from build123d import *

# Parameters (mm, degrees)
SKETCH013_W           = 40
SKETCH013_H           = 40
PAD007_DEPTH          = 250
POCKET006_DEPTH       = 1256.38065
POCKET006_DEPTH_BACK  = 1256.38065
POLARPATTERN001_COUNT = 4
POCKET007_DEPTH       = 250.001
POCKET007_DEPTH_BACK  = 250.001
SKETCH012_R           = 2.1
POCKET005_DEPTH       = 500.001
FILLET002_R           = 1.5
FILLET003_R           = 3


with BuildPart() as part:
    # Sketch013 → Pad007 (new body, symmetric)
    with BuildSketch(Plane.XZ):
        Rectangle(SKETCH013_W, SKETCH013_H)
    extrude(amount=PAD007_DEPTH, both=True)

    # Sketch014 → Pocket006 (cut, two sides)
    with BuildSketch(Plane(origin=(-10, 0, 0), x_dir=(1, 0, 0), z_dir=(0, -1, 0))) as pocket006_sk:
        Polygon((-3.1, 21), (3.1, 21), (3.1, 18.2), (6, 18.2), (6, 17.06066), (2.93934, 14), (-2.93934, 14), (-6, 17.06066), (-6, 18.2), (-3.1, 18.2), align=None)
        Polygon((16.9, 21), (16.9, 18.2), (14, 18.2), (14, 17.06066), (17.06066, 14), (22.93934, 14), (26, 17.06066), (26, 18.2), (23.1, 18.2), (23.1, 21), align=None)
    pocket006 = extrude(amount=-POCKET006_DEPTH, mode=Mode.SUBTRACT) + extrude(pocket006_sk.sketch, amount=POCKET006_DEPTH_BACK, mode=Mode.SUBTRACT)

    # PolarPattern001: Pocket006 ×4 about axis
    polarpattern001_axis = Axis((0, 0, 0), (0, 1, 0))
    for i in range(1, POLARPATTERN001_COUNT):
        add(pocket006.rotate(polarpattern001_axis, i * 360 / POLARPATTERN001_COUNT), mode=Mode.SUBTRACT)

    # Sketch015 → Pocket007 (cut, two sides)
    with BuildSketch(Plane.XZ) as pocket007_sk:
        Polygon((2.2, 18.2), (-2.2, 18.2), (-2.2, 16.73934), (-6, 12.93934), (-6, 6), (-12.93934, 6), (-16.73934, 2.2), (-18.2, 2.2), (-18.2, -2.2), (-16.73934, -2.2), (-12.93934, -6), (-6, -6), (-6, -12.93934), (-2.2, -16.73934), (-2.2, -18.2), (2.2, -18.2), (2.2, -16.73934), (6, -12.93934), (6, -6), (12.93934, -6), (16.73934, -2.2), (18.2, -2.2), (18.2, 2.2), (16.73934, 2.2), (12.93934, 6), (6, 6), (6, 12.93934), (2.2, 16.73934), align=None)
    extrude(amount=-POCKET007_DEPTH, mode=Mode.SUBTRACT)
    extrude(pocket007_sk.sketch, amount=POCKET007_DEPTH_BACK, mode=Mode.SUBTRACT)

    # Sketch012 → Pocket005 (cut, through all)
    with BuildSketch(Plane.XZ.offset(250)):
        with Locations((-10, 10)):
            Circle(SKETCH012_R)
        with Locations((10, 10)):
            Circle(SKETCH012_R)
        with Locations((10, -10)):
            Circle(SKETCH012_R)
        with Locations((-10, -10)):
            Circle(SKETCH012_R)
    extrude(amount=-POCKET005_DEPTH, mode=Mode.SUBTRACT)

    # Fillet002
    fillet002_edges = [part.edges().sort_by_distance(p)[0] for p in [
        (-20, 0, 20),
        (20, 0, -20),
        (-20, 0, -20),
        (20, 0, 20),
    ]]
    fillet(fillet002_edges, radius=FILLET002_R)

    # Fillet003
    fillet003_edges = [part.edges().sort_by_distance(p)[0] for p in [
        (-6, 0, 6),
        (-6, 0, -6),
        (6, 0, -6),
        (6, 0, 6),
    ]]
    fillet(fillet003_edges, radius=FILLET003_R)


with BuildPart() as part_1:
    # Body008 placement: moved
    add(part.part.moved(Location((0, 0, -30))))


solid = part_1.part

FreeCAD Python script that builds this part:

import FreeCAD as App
import Part
import Sketcher
Q = App.Units.Quantity


def edges_at(feature, points):
    """Names of the edges that pass closest to the given points."""
    edges = feature.Shape.Edges
    near = lambda p: min(range(len(edges)), key=lambda i: edges[i].distToShape(Part.Vertex(*p))[0])
    return sorted({f"Edge{near(p) + 1}" for p in points})

doc = App.newDocument("Part")
body = doc.addObject("PartDesign::Body", "Body")

# Sketch on XZ plane
sketch1 = body.newObject("Sketcher::SketchObject", "Sketch")
sketch1.AttachmentSupport = (doc.getObject("XZ_Plane"), [""])
sketch1.MapMode = "FlatFace"
sketch1.addGeometry(Part.LineSegment(App.Vector(-20, 20, 0), App.Vector(-20, -20, 0)), False)
sketch1.addGeometry(Part.LineSegment(App.Vector(-20, -20, 0), App.Vector(20, -20, 0)), False)
sketch1.addGeometry(Part.LineSegment(App.Vector(20, -20, 0), App.Vector(20, 20, 0)), False)
sketch1.addGeometry(Part.LineSegment(App.Vector(20, 20, 0), App.Vector(-20, 20, 0)), False)
sketch1.addConstraint(Sketcher.Constraint("Coincident", 0, 2, 1, 1))
sketch1.addConstraint(Sketcher.Constraint("Coincident", 1, 2, 2, 1))
sketch1.addConstraint(Sketcher.Constraint("Coincident", 2, 2, 3, 1))
sketch1.addConstraint(Sketcher.Constraint("Coincident", 3, 2, 0, 1))
sketch1.addConstraint(Sketcher.Constraint("Vertical", 0))
sketch1.addConstraint(Sketcher.Constraint("Horizontal", 1))
sketch1.addConstraint(Sketcher.Constraint("Vertical", 2))
sketch1.addConstraint(Sketcher.Constraint("Horizontal", 3))
sketch1.addConstraint(Sketcher.Constraint("Symmetric", 0, 2, 2, 2, -1, 1))
sketch1.addConstraint(Sketcher.Constraint("Equal", 3, 0))
sketch1.addConstraint(Sketcher.Constraint("DistanceX", 1, 1, 1, 2, Q("40 mm")))
pad1 = body.newObject("PartDesign::Pad", "Pad")
pad1.Profile = sketch1
pad1.Length = 500
pad1.Midplane = True

# Sketch on XZ plane
sketch2 = body.newObject("Sketcher::SketchObject", "Sketch001")
sketch2.AttachmentSupport = (doc.getObject("XZ_Plane"), [""])
sketch2.MapMode = "FlatFace"
sketch2.addGeometry(Part.LineSegment(App.Vector(-6.9, 21, 0), App.Vector(-13.1, 21, 0)), False)
sketch2.addGeometry(Part.LineSegment(App.Vector(-13.1, 21, 0), App.Vector(-13.1, 18.2, 0)), False)
sketch2.addGeometry(Part.LineSegment(App.Vector(-13.1, 18.2, 0), App.Vector(-16, 18.2, 0)), False)
sketch2.addGeometry(Part.LineSegment(App.Vector(-16, 18.2, 0), App.Vector(-16, 17.1, 0)), False)
sketch2.addGeometry(Part.LineSegment(App.Vector(-16, 17.1, 0), App.Vector(-12.9, 14, 0)), False)
sketch2.addGeometry(Part.LineSegment(App.Vector(-12.9, 14, 0), App.Vector(-7.1, 14, 0)), False)
sketch2.addGeometry(Part.LineSegment(App.Vector(-7.1, 14, 0), App.Vector(-4, 17.1, 0)), False)
sketch2.addGeometry(Part.LineSegment(App.Vector(-4, 17.1, 0), App.Vector(-4, 18.2, 0)), False)
sketch2.addGeometry(Part.LineSegment(App.Vector(-4, 18.2, 0), App.Vector(-6.9, 18.2, 0)), False)
sketch2.addGeometry(Part.LineSegment(App.Vector(-6.9, 18.2, 0), App.Vector(-6.9, 21, 0)), False)
sketch2.addGeometry(Part.LineSegment(App.Vector(6.9, 21, 0), App.Vector(6.9, 18.2, 0)), False)
sketch2.addGeometry(Part.LineSegment(App.Vector(6.9, 18.2, 0), App.Vector(4, 18.2, 0)), False)
sketch2.addGeometry(Part.LineSegment(App.Vector(4, 18.2, 0), App.Vector(4, 17.1, 0)), False)
sketch2.addGeometry(Part.LineSegment(App.Vector(4, 17.1, 0), App.Vector(7.1, 14, 0)), False)
sketch2.addGeometry(Part.LineSegment(App.Vector(7.1, 14, 0), App.Vector(12.9, 14, 0)), False)
sketch2.addGeometry(Part.LineSegment(App.Vector(12.9, 14, 0), App.Vector(16, 17.1, 0)), False)
sketch2.addGeometry(Part.LineSegment(App.Vector(16, 17.1, 0), App.Vector(16, 18.2, 0)), False)
sketch2.addGeometry(Part.LineSegment(App.Vector(16, 18.2, 0), App.Vector(13.1, 18.2, 0)), False)
sketch2.addGeometry(Part.LineSegment(App.Vector(13.1, 18.2, 0), App.Vector(13.1, 21, 0)), False)
sketch2.addGeometry(Part.LineSegment(App.Vector(13.1, 21, 0), App.Vector(6.9, 21, 0)), False)
sketch2.addConstraint(Sketcher.Constraint("Coincident", 0, 2, 1, 1))
sketch2.addConstraint(Sketcher.Constraint("Coincident", 1, 2, 2, 1))
sketch2.addConstraint(Sketcher.Constraint("Coincident", 2, 2, 3, 1))
sketch2.addConstraint(Sketcher.Constraint("Coincident", 3, 2, 4, 1))
sketch2.addConstraint(Sketcher.Constraint("Coincident", 4, 2, 5, 1))
sketch2.addConstraint(Sketcher.Constraint("Coincident", 5, 2, 6, 1))
sketch2.addConstraint(Sketcher.Constraint("Coincident", 6, 2, 7, 1))
sketch2.addConstraint(Sketcher.Constraint("Coincident", 7, 2, 8, 1))
sketch2.addConstraint(Sketcher.Constraint("Coincident", 8, 2, 9, 1))
sketch2.addConstraint(Sketcher.Constraint("Coincident", 9, 2, 0, 1))
sketch2.addConstraint(Sketcher.Constraint("Coincident", 10, 2, 11, 1))
sketch2.addConstraint(Sketcher.Constraint("Coincident", 11, 2, 12, 1))
sketch2.addConstraint(Sketcher.Constraint("Coincident", 12, 2, 13, 1))
sketch2.addConstraint(Sketcher.Constraint("Coincident", 13, 2, 14, 1))
sketch2.addConstraint(Sketcher.Constraint("Coincident", 14, 2, 15, 1))
sketch2.addConstraint(Sketcher.Constraint("Coincident", 15, 2, 16, 1))
sketch2.addConstraint(Sketcher.Constraint("Coincident", 16, 2, 17, 1))
sketch2.addConstraint(Sketcher.Constraint("Coincident", 17, 2, 18, 1))
sketch2.addConstraint(Sketcher.Constraint("Coincident", 18, 2, 19, 1))
sketch2.addConstraint(Sketcher.Constraint("Coincident", 19, 2, 10, 1))
sketch2.addConstraint(Sketcher.Constraint("Horizontal", 0))
sketch2.addConstraint(Sketcher.Constraint("Vertical", 1))
sketch2.addConstraint(Sketcher.Constraint("Horizontal", 2))
sketch2.addConstraint(Sketcher.Constraint("Vertical", 3))
sketch2.addConstraint(Sketcher.Constraint("Horizontal", 5))
sketch2.addConstraint(Sketcher.Constraint("Vertical", 7))
sketch2.addConstraint(Sketcher.Constraint("Horizontal", 8))
sketch2.addConstraint(Sketcher.Constraint("Vertical", 9))
sketch2.addConstraint(Sketcher.Constraint("Vertical", 10))
sketch2.addConstraint(Sketcher.Constraint("Horizontal", 11))
sketch2.addConstraint(Sketcher.Constraint("Vertical", 12))
sketch2.addConstraint(Sketcher.Constraint("Horizontal", 14))
sketch2.addConstraint(Sketcher.Constraint("Vertical", 16))
sketch2.addConstraint(Sketcher.Constraint("Horizontal", 17))
sketch2.addConstraint(Sketcher.Constraint("Vertical", 18))
sketch2.addConstraint(Sketcher.Constraint("Horizontal", 19))
sketch2.addConstraint(Sketcher.Constraint("Symmetric", 8, 2, 10, 2, -2))
sketch2.addConstraint(Sketcher.Constraint("Symmetric", 6, 2, 12, 2, -2))
sketch2.addConstraint(Sketcher.Constraint("Symmetric", 5, 2, 13, 2, -2))
sketch2.addConstraint(Sketcher.Constraint("Symmetric", 3, 2, 15, 2, -2))
sketch2.addConstraint(Sketcher.Constraint("Symmetric", 1, 2, 17, 2, -2))
sketch2.addConstraint(Sketcher.Constraint("Perpendicular", 4, 6))
sketch2.addConstraint(Sketcher.Constraint("Perpendicular", 6, 13))
sketch2.addConstraint(Sketcher.Constraint("Perpendicular", 13, 15))
sketch2.addConstraint(Sketcher.Constraint("Horizontal", 3, 2, 6, 2))
sketch2.addConstraint(Sketcher.Constraint("Horizontal", 2, 2, 7, 2))
sketch2.addConstraint(Sketcher.Constraint("Horizontal", 9, 2, 18, 2))
sketch2.addConstraint(Sketcher.Constraint("Equal", 2, 8))
sketch2.addConstraint(Sketcher.Constraint("DistanceX", 0, 2, 0, 1, Q("6.2 mm")))
sketch2.addConstraint(Sketcher.Constraint("DistanceX", 2, 2, 2, 1, Q("2.9 mm")))
sketch2.addConstraint(Sketcher.Constraint("DistanceY", 1, 2, 1, 1, Q("2.8 mm")))
sketch2.addConstraint(Sketcher.Constraint("DistanceY", -1, 1, 0, 2, Q("21 mm")))
sketch2.addConstraint(Sketcher.Constraint("DistanceX", 2, 2, -1, 1, Q("16 mm")))
sketch2.addConstraint(Sketcher.Constraint("DistanceY", -1, 1, 4, 2, Q("14 mm")))
sketch2.addConstraint(Sketcher.Constraint("DistanceX", 5, 1, 5, 2, Q("5.87868 mm")))
pocket1 = body.newObject("PartDesign::Pocket", "Pocket")
pocket1.Profile = sketch2
pocket1.Type = "ThroughAll"
pocket1.Midplane = True
doc.recompute()

polarpattern = body.newObject("PartDesign::PolarPattern", "PolarPattern")
polarpattern.Originals = [pocket1]
polarpattern.Axis = (doc.getObject("Y_Axis"), [""])
polarpattern.Angle = 360
polarpattern.Occurrences = 4
body.Tip = polarpattern

# Sketch on XZ plane
sketch3 = body.newObject("Sketcher::SketchObject", "Sketch002")
sketch3.AttachmentSupport = (doc.getObject("XZ_Plane"), [""])
sketch3.MapMode = "FlatFace"
sketch3.addGeometry(Part.LineSegment(App.Vector(2.2, 18.2, 0), App.Vector(-2.2, 18.2, 0)), False)
sketch3.addGeometry(Part.LineSegment(App.Vector(-2.2, 18.2, 0), App.Vector(-2.2, 16.7, 0)), False)
sketch3.addGeometry(Part.LineSegment(App.Vector(-2.2, 16.7, 0), App.Vector(-6, 12.9, 0)), False)
sketch3.addGeometry(Part.LineSegment(App.Vector(-6, 12.9, 0), App.Vector(-6, 6, 0)), False)
sketch3.addGeometry(Part.LineSegment(App.Vector(-6, 6, 0), App.Vector(-12.9, 6, 0)), False)
sketch3.addGeometry(Part.LineSegment(App.Vector(-12.9, 6, 0), App.Vector(-16.7, 2.2, 0)), False)
sketch3.addGeometry(Part.LineSegment(App.Vector(-16.7, 2.2, 0), App.Vector(-18.2, 2.2, 0)), False)
sketch3.addGeometry(Part.LineSegment(App.Vector(-18.2, 2.2, 0), App.Vector(-18.2, -2.2, 0)), False)
sketch3.addGeometry(Part.LineSegment(App.Vector(-18.2, -2.2, 0), App.Vector(-16.7, -2.2, 0)), False)
sketch3.addGeometry(Part.LineSegment(App.Vector(-16.7, -2.2, 0), App.Vector(-12.9, -6, 0)), False)
sketch3.addGeometry(Part.LineSegment(App.Vector(-12.9, -6, 0), App.Vector(-6, -6, 0)), False)
sketch3.addGeometry(Part.LineSegment(App.Vector(-6, -6, 0), App.Vector(-6, -12.9, 0)), False)
sketch3.addGeometry(Part.LineSegment(App.Vector(-6, -12.9, 0), App.Vector(-2.2, -16.7, 0)), False)
sketch3.addGeometry(Part.LineSegment(App.Vector(-2.2, -16.7, 0), App.Vector(-2.2, -18.2, 0)), False)
sketch3.addGeometry(Part.LineSegment(App.Vector(-2.2, -18.2, 0), App.Vector(2.2, -18.2, 0)), False)
sketch3.addGeometry(Part.LineSegment(App.Vector(2.2, -18.2, 0), App.Vector(2.2, -16.7, 0)), False)
sketch3.addGeometry(Part.LineSegment(App.Vector(2.2, -16.7, 0), App.Vector(6, -12.9, 0)), False)
sketch3.addGeometry(Part.LineSegment(App.Vector(6, -12.9, 0), App.Vector(6, -6, 0)), False)
sketch3.addGeometry(Part.LineSegment(App.Vector(6, -6, 0), App.Vector(12.9, -6, 0)), False)
sketch3.addGeometry(Part.LineSegment(App.Vector(12.9, -6, 0), App.Vector(16.7, -2.2, 0)), False)
sketch3.addGeometry(Part.LineSegment(App.Vector(16.7, -2.2, 0), App.Vector(18.2, -2.2, 0)), False)
sketch3.addGeometry(Part.LineSegment(App.Vector(18.2, -2.2, 0), App.Vector(18.2, 2.2, 0)), False)
sketch3.addGeometry(Part.LineSegment(App.Vector(18.2, 2.2, 0), App.Vector(16.7, 2.2, 0)), False)
sketch3.addGeometry(Part.LineSegment(App.Vector(16.7, 2.2, 0), App.Vector(12.9, 6, 0)), False)
sketch3.addGeometry(Part.LineSegment(App.Vector(12.9, 6, 0), App.Vector(6, 6, 0)), False)
sketch3.addGeometry(Part.LineSegment(App.Vector(6, 6, 0), App.Vector(6, 12.9, 0)), False)
sketch3.addGeometry(Part.LineSegment(App.Vector(6, 12.9, 0), App.Vector(2.2, 16.7, 0)), False)
sketch3.addGeometry(Part.LineSegment(App.Vector(2.2, 16.7, 0), App.Vector(2.2, 18.2, 0)), False)
sketch3.addConstraint(Sketcher.Constraint("Coincident", 0, 2, 1, 1))
sketch3.addConstraint(Sketcher.Constraint("Coincident", 1, 2, 2, 1))
sketch3.addConstraint(Sketcher.Constraint("Coincident", 2, 2, 3, 1))
sketch3.addConstraint(Sketcher.Constraint("Coincident", 3, 2, 4, 1))
sketch3.addConstraint(Sketcher.Constraint("Coincident", 4, 2, 5, 1))
sketch3.addConstraint(Sketcher.Constraint("Coincident", 5, 2, 6, 1))
sketch3.addConstraint(Sketcher.Constraint("Coincident", 6, 2, 7, 1))
sketch3.addConstraint(Sketcher.Constraint("Coincident", 7, 2, 8, 1))
sketch3.addConstraint(Sketcher.Constraint("Coincident", 8, 2, 9, 1))
sketch3.addConstraint(Sketcher.Constraint("Coincident", 9, 2, 10, 1))
sketch3.addConstraint(Sketcher.Constraint("Coincident", 10, 2, 11, 1))
sketch3.addConstraint(Sketcher.Constraint("Coincident", 11, 2, 12, 1))
sketch3.addConstraint(Sketcher.Constraint("Coincident", 12, 2, 13, 1))
sketch3.addConstraint(Sketcher.Constraint("Coincident", 13, 2, 14, 1))
sketch3.addConstraint(Sketcher.Constraint("Coincident", 14, 2, 15, 1))
sketch3.addConstraint(Sketcher.Constraint("Coincident", 15, 2, 16, 1))
sketch3.addConstraint(Sketcher.Constraint("Coincident", 16, 2, 17, 1))
sketch3.addConstraint(Sketcher.Constraint("Coincident", 17, 2, 18, 1))
sketch3.addConstraint(Sketcher.Constraint("Coincident", 18, 2, 19, 1))
sketch3.addConstraint(Sketcher.Constraint("Coincident", 19, 2, 20, 1))
sketch3.addConstraint(Sketcher.Constraint("Coincident", 20, 2, 21, 1))
sketch3.addConstraint(Sketcher.Constraint("Coincident", 21, 2, 22, 1))
sketch3.addConstraint(Sketcher.Constraint("Coincident", 22, 2, 23, 1))
sketch3.addConstraint(Sketcher.Constraint("Coincident", 23, 2, 24, 1))
sketch3.addConstraint(Sketcher.Constraint("Coincident", 24, 2, 25, 1))
sketch3.addConstraint(Sketcher.Constraint("Coincident", 25, 2, 26, 1))
sketch3.addConstraint(Sketcher.Constraint("Coincident", 26, 2, 27, 1))
sketch3.addConstraint(Sketcher.Constraint("Coincident", 27, 2, 0, 1))
sketch3.addConstraint(Sketcher.Constraint("Horizontal", 0))
sketch3.addConstraint(Sketcher.Constraint("Vertical", 1))
sketch3.addConstraint(Sketcher.Constraint("Vertical", 3))
sketch3.addConstraint(Sketcher.Constraint("Horizontal", 4))
sketch3.addConstraint(Sketcher.Constraint("Horizontal", 6))
sketch3.addConstraint(Sketcher.Constraint("Vertical", 7))
sketch3.addConstraint(Sketcher.Constraint("Horizontal", 8))
sketch3.addConstraint(Sketcher.Constraint("Horizontal", 10))
sketch3.addConstraint(Sketcher.Constraint("Vertical", 11))
sketch3.addConstraint(Sketcher.Constraint("Vertical", 13))
sketch3.addConstraint(Sketcher.Constraint("Horizontal", 14))
sketch3.addConstraint(Sketcher.Constraint("Vertical", 15))
sketch3.addConstraint(Sketcher.Constraint("Vertical", 17))
sketch3.addConstraint(Sketcher.Constraint("Horizontal", 18))
sketch3.addConstraint(Sketcher.Constraint("Horizontal", 20))
sketch3.addConstraint(Sketcher.Constraint("Vertical", 21))
sketch3.addConstraint(Sketcher.Constraint("Horizontal", 22))
sketch3.addConstraint(Sketcher.Constraint("Horizontal", 24))
sketch3.addConstraint(Sketcher.Constraint("Vertical", 25))
sketch3.addConstraint(Sketcher.Constraint("Vertical", 27))
sketch3.addConstraint(Sketcher.Constraint("Symmetric", 0, 2, 14, 2, -1, 1))
sketch3.addConstraint(Sketcher.Constraint("Symmetric", 2, 2, 16, 2, -1, 1))
sketch3.addConstraint(Sketcher.Constraint("Symmetric", 4, 2, 18, 2, -1, 1))
sketch3.addConstraint(Sketcher.Constraint("Symmetric", 5, 2, 19, 2, -1, 1))
sketch3.addConstraint(Sketcher.Constraint("Symmetric", 7, 2, 21, 2, -1, 1))
sketch3.addConstraint(Sketcher.Constraint("Symmetric", 9, 2, 23, 2, -1, 1))
sketch3.addConstraint(Sketcher.Constraint("Symmetric", 11, 2, 25, 2, -1, 1))
sketch3.addConstraint(Sketcher.Constraint("Symmetric", 12, 2, 26, 2, -1, 1))
sketch3.addConstraint(Sketcher.Constraint("Symmetric", 12, 2, 15, 2, -2))
sketch3.addConstraint(Sketcher.Constraint("Symmetric", 11, 2, 16, 2, -2))
sketch3.addConstraint(Sketcher.Constraint("Symmetric", 9, 2, 18, 2, -2))
sketch3.addConstraint(Sketcher.Constraint("Symmetric", 8, 2, 19, 2, -2))
sketch3.addConstraint(Sketcher.Constraint("Parallel", 2, 5))
sketch3.addConstraint(Sketcher.Constraint("Perpendicular", 5, 9))
sketch3.addConstraint(Sketcher.Constraint("Parallel", 9, 12))
sketch3.addConstraint(Sketcher.Constraint("Perpendicular", 19, 23))
sketch3.addConstraint(Sketcher.Constraint("Equal", 22, 1))
sketch3.addConstraint(Sketcher.Constraint("Equal", 24, 3))
sketch3.addConstraint(Sketcher.Constraint("Equal", 14, 7))
sketch3.addConstraint(Sketcher.Constraint("Equal", 2, 5))
sketch3.addConstraint(Sketcher.Constraint("DistanceX", 0, 2, 0, 1, Q("4.4 mm")))
sketch3.addConstraint(Sketcher.Constraint("DistanceX", 2, 2, -1, 1, Q("6 mm")))
sketch3.addConstraint(Sketcher.Constraint("DistanceY", 5, 2, 0, 2, Q("16 mm")))
sketch3.addConstraint(Sketcher.Constraint("DistanceX", 4, 2, 4, 1, Q("6.93934 mm")))
pocket2 = body.newObject("PartDesign::Pocket", "Pocket001")
pocket2.Profile = sketch3
pocket2.Type = "ThroughAll"
pocket2.Midplane = True

# Sketch on XZ plane
sketch4 = body.newObject("Sketcher::SketchObject", "Sketch003")
sketch4.AttachmentSupport = (doc.getObject("XZ_Plane"), [""])
sketch4.MapMode = "FlatFace"
sketch4.AttachmentOffset = App.Placement(App.Vector(0, 0, 250), App.Rotation())
sketch4.addGeometry(Part.Circle(App.Vector(-10, 10, 0), App.Vector(0, 0, 1), 2.1), False)
sketch4.addGeometry(Part.Circle(App.Vector(10, 10, 0), App.Vector(0, 0, 1), 2.1), False)
sketch4.addGeometry(Part.Circle(App.Vector(10, -10, 0), App.Vector(0, 0, 1), 2.1), False)
sketch4.addGeometry(Part.Circle(App.Vector(-10, -10, 0), App.Vector(0, 0, 1), 2.1), False)
sketch4.addConstraint(Sketcher.Constraint("Equal", 0, 1))
sketch4.addConstraint(Sketcher.Constraint("Equal", 1, 2))
sketch4.addConstraint(Sketcher.Constraint("Equal", 2, 3))
sketch4.addConstraint(Sketcher.Constraint("Symmetric", 0, 3, 2, 3, -1, 1))
sketch4.addConstraint(Sketcher.Constraint("Symmetric", 1, 3, 3, 3, -1, 1))
sketch4.addConstraint(Sketcher.Constraint("Symmetric", 0, 3, 1, 3, -2))
sketch4.addConstraint(Sketcher.Constraint("Diameter", 0, Q("4.2 mm")))
sketch4.addConstraint(Sketcher.Constraint("DistanceX", 0, 3, -1, 1, Q("10 mm")))
sketch4.addConstraint(Sketcher.Constraint("DistanceY", -1, 1, 0, 3, Q("10 mm")))
pocket3 = body.newObject("PartDesign::Pocket", "Pocket002")
pocket3.Profile = sketch4
pocket3.Type = "ThroughAll"
doc.recompute()

fillet = body.newObject("PartDesign::Fillet", "Fillet")
fillet.Base = (pocket3, edges_at(pocket3, [
    (-20, 0, 20),
    (20, 0, -20),
    (-20, 0, -20),
    (20, 0, 20),
]))
fillet.Radius = 1.5
doc.recompute()

fillet2 = body.newObject("PartDesign::Fillet", "Fillet001")
fillet2.Base = (fillet, edges_at(fillet, [
    (-6, 0, 6),
    (-6, 0, -6),
    (6, 0, -6),
    (6, 0, 6),
]))
fillet2.Radius = 3
body2 = doc.addObject("PartDesign::Body", "Body001")
doc.recompute()

body.Placement = App.Placement(App.Vector(0, 0, -30), App.Rotation(App.Vector(0, 0, 1), 0))
boolean = body2.newObject("PartDesign::Boolean", "Boolean")
boolean.Type = "Fuse"
boolean.addObjects([body])

doc.recompute()
